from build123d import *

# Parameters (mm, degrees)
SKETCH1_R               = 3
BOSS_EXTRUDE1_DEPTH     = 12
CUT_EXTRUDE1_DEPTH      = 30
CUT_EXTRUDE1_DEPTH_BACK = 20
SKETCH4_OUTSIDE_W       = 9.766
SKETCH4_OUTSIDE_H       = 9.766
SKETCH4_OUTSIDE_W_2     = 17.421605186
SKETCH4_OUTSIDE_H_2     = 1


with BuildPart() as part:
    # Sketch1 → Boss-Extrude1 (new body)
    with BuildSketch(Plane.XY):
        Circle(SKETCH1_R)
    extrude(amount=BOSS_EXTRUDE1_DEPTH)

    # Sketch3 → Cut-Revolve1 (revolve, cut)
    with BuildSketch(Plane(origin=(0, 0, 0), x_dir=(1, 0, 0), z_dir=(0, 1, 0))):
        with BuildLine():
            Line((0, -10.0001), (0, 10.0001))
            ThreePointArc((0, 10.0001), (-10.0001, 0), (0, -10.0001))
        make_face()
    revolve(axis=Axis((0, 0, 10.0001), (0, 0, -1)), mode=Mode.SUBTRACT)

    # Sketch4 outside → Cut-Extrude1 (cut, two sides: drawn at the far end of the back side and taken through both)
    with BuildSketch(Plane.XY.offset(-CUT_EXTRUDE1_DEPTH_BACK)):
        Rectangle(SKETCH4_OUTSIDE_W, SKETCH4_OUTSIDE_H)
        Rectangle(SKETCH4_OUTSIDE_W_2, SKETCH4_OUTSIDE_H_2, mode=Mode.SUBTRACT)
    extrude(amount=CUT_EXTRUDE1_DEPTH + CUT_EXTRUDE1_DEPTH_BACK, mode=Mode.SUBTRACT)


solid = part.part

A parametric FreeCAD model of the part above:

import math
import FreeCAD as App
import Part
import Sketcher
from FreeCAD import Vector


def add_polygon(sketch, points):
    """Adds a closed chain of lines whose ends are joined by coincident constraints."""
    first, n = sketch.GeometryCount, len(points)
    for a, b in zip(points, points[1:] + points[:1]):
        sketch.addGeometry(Part.LineSegment(App.Vector(*a, 0), App.Vector(*b, 0)), False)
    for i in range(n):
        sketch.addConstraint(Sketcher.Constraint("Coincident", first + i, 2, first + (i + 1) % n, 1))

doc = App.newDocument("Part")
params = doc.addObject("Spreadsheet::Sheet", "Params")
for row, (alias, value) in enumerate([
    ("sketch1_diameter", "6 mm"),
    ("pad1_length", "12 mm"),
    ("groove_angle", "360 deg"),
], start=1):
    params.set(f"A{row}", alias)
    params.set(f"B{row}", "=" + value)
    params.setAlias(f"B{row}", alias)

body = doc.addObject("PartDesign::Body", "Body")

# Sketch on XY plane
sketch1 = body.newObject("Sketcher::SketchObject", "Sketch")
sketch1.AttachmentSupport = (doc.getObject("XY_Plane"), [""])
sketch1.MapMode = "FlatFace"
sketch1.addGeometry(Part.Circle(Vector(0, 0, 0), Vector(0, 0, 1), 3), False)
sketch1.addConstraint(Sketcher.Constraint("Coincident", 0, 3, -1, 1))
sketch1.addConstraint(Sketcher.Constraint("Diameter", 0, 6.0))
sketch1.setExpression("Constraints[1]", "Params.sketch1_diameter")
pad1 = body.newObject("PartDesign::Pad", "Pad")
pad1.Profile = sketch1
pad1.setExpression("Length", "Params.pad1_length")

# Sketch on XZ plane
sketch2 = body.newObject("Sketcher::SketchObject", "Sketch001")
sketch2.AttachmentSupport = (doc.getObject("XZ_Plane"), [""])
sketch2.MapMode = "FlatFace"
sketch2.addGeometry(Part.LineSegment(Vector(0, 10.0001, 0), Vector(0, -10.0001, 0)), False)
sketch2.addGeometry(Part.ArcOfCircle(Part.Circle(Vector(0, 0, 0), Vector(0, 0, 1), 10.0001), math.radians(90), math.radians(270)), False)
sketch2.addConstraint(Sketcher.Constraint("Coincident", 0, 1, 1, 1))
sketch2.addConstraint(Sketcher.Constraint("Coincident", 1, 2, 0, 2))
sketch2.addConstraint(Sketcher.Constraint("Vertical", 0))
sketch2.addConstraint(Sketcher.Constraint("Coincident", 1, 3, -1, 1))
sketch2.addConstraint(Sketcher.Constraint("PointOnObject", 0, 1, -2))
sketch2.addConstraint(Sketcher.Constraint("Radius", 1, 10.0001))
groove = body.newObject("PartDesign::Groove", "Groove")
groove.Profile = sketch2
groove.ReferenceAxis = (sketch2, ["V_Axis"])
groove.setExpression("Angle", "Params.groove_angle")

# Sketch on XY plane
sketch3 = body.newObject("Sketcher::SketchObject", "Sketch002")
sketch3.AttachmentSupport = (doc.getObject("XY_Plane"), [""])
sketch3.MapMode = "FlatFace"
add_polygon(sketch3, [(-4.883, -0.5), (-4.883, -4.883), (4.883, -4.883), (4.883, -0.5)])  # lines 0-3
add_polygon(sketch3, [(-4.883, 4.883), (-4.883, 0.5), (4.883, 0.5), (4.883, 4.883)])  # lines 4-7
sketch3.addConstraint(Sketcher.Constraint("Vertical", 0))
sketch3.addConstraint(Sketcher.Constraint("Horizontal", 1))
sketch3.addConstraint(Sketcher.Constraint("Vertical", 2))
sketch3.addConstraint(Sketcher.Constraint("Horizontal", 3))
sketch3.addConstraint(Sketcher.Constraint("Vertical", 4))
sketch3.addConstraint(Sketcher.Constraint("Horizontal", 5))
sketch3.addConstraint(Sketcher.Constraint("Vertical", 6))
sketch3.addConstraint(Sketcher.Constraint("Horizontal", 7))
sketch3.addConstraint(Sketcher.Constraint("Symmetric", 2, 2, 4, 2, -1, 1))
sketch3.addConstraint(Sketcher.Constraint("Symmetric", 0, 2, 6, 2, -1, 1))
sketch3.addConstraint(Sketcher.Constraint("Vertical", 3, 2, 4, 2))
sketch3.addConstraint(Sketcher.Constraint("DistanceY", 3, 2, 4, 2, 1.0))
sketch3.addConstraint(Sketcher.Constraint("DistanceX", 1, 1, 1, 2, 9.766))
sketch3.addConstraint(Sketcher.Constraint("DistanceY", 0, 2, 0, 1, 4.383))
pocket1 = body.newObject("PartDesign::Pocket", "Pocket")
pocket1.Profile = sketch3
pocket1.Type = "ThroughAll"
pocket1.Midplane = True

doc.recompute()
